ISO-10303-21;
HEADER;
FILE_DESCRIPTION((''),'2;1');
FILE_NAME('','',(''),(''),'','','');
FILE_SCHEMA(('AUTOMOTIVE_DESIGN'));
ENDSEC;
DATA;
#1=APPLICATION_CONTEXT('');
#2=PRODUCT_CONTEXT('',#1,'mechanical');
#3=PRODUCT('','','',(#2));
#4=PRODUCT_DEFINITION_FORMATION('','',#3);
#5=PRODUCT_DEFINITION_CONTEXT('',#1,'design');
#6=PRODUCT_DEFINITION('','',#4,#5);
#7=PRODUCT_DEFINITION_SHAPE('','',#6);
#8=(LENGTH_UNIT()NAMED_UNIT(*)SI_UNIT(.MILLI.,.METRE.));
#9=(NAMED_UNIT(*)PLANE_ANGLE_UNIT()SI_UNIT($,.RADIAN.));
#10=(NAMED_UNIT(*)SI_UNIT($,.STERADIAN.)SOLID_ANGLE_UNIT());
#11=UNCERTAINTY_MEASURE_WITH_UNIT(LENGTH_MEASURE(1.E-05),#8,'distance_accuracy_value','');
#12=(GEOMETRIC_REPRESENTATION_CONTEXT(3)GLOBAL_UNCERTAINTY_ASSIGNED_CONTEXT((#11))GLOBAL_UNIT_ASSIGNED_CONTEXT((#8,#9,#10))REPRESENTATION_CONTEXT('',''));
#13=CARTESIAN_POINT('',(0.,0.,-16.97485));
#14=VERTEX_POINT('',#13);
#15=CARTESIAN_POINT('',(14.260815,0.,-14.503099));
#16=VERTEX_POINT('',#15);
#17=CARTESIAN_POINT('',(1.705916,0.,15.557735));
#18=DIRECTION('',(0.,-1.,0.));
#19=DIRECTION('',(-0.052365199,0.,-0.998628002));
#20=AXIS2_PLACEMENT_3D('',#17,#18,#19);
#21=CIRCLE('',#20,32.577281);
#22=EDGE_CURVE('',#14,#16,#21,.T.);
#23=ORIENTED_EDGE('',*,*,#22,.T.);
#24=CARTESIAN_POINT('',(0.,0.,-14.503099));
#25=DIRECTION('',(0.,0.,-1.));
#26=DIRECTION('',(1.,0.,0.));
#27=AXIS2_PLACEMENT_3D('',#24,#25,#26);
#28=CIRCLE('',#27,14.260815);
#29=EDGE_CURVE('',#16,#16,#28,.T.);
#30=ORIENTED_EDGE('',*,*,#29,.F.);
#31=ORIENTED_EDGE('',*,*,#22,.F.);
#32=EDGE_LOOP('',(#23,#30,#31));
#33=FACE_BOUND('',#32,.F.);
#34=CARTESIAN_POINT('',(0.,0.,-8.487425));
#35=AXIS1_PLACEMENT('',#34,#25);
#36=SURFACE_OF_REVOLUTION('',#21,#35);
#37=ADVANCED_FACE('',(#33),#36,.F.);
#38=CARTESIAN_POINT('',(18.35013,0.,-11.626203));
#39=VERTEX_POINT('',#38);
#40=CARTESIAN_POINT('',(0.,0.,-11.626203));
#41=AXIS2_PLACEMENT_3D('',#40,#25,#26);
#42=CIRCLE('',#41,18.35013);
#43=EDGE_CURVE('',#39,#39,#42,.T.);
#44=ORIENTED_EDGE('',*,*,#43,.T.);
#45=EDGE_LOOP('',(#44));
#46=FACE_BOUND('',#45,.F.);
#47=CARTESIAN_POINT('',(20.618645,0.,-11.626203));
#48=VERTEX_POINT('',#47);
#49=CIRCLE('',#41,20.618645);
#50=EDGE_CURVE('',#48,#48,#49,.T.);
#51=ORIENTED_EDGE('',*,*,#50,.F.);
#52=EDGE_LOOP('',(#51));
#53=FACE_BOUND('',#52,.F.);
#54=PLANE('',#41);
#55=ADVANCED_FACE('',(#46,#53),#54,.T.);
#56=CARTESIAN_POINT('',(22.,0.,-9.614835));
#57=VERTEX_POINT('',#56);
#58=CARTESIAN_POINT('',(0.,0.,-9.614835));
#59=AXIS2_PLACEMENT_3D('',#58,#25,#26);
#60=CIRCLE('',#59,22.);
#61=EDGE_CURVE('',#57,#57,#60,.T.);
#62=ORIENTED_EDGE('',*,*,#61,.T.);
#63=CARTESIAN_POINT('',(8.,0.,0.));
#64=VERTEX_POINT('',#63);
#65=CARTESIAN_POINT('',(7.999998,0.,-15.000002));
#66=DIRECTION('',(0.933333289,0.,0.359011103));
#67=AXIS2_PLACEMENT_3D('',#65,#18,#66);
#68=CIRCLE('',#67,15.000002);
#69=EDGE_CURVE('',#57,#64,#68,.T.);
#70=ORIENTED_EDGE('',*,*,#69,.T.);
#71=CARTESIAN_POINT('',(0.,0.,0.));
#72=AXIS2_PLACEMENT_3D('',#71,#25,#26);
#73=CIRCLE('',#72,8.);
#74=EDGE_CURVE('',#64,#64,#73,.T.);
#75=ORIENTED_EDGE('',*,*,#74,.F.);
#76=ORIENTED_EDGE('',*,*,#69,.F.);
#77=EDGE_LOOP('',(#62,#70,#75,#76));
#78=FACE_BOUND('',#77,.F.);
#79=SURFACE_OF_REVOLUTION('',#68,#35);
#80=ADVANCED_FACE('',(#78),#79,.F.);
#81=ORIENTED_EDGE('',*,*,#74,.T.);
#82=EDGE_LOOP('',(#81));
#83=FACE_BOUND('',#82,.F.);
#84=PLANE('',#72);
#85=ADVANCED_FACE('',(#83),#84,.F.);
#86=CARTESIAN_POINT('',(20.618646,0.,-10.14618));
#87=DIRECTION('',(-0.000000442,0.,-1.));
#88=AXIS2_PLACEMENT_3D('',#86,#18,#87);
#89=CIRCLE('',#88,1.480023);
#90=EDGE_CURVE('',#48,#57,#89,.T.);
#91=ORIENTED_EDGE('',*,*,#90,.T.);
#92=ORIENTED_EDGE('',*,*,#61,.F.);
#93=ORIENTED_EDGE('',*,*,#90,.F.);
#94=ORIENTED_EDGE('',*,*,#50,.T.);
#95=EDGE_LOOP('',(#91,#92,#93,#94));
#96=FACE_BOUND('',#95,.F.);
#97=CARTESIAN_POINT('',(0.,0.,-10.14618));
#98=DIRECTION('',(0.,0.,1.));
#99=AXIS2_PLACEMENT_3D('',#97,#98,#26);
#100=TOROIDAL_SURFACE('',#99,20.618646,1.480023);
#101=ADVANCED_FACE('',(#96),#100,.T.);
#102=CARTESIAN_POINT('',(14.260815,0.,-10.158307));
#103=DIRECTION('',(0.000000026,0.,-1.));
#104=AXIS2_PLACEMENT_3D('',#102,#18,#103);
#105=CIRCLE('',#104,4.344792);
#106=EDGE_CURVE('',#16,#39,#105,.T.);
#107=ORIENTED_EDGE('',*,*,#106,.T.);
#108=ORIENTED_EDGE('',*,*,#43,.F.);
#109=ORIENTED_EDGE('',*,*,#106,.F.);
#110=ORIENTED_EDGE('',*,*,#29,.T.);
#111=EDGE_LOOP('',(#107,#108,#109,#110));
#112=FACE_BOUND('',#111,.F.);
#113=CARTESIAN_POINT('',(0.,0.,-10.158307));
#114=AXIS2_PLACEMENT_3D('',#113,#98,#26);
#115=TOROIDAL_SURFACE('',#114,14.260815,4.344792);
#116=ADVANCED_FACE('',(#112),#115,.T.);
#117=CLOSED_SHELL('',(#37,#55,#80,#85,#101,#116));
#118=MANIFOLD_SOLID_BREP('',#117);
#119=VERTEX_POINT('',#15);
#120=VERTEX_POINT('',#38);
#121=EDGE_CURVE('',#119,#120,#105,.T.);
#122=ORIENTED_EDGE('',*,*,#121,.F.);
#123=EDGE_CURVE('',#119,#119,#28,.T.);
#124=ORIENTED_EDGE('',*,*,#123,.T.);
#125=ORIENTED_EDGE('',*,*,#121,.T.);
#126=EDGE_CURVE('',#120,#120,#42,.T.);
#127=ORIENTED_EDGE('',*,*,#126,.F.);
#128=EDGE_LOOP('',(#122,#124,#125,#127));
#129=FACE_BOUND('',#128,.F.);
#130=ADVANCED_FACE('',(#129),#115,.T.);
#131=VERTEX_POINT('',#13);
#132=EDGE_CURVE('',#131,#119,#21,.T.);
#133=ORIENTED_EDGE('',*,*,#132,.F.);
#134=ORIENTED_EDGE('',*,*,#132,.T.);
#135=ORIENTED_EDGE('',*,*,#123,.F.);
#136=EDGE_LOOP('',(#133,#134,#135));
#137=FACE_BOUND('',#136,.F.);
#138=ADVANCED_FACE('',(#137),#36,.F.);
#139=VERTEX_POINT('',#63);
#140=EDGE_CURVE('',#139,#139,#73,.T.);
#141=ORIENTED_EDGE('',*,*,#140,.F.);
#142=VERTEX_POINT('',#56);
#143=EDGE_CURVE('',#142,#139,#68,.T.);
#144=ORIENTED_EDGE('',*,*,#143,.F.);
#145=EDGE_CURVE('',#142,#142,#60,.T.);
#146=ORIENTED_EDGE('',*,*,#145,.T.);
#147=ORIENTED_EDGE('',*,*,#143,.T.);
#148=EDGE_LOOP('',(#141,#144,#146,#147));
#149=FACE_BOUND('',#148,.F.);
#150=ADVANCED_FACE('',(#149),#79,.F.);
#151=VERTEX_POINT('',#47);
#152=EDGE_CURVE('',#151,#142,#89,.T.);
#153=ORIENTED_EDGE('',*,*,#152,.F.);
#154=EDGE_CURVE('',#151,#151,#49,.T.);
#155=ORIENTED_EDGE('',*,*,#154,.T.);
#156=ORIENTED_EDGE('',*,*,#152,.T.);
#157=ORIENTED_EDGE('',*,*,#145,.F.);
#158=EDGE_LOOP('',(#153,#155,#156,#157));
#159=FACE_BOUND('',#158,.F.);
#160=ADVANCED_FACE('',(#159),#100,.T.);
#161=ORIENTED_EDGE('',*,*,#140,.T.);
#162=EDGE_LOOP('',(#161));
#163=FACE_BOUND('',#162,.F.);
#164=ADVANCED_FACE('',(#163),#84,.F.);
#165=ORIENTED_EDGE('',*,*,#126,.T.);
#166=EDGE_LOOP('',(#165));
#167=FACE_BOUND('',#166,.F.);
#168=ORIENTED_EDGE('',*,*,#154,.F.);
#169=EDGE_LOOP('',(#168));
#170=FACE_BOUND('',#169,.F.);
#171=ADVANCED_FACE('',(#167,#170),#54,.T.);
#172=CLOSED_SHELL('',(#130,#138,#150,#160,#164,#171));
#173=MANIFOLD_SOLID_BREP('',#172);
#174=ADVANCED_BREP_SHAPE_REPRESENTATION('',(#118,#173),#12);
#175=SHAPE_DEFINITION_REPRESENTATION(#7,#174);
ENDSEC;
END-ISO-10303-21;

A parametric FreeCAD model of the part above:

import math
import FreeCAD as App
import Part
import Sketcher
from FreeCAD import Vector

doc = App.newDocument("Part")
body = doc.addObject("PartDesign::Body", "Body")

# Sketch on XZ plane
sketch1 = body.newObject("Sketcher::SketchObject", "Sketch")
sketch1.AttachmentSupport = (doc.getObject("XZ_Plane"), [""])
sketch1.MapMode = "FlatFace"
sketch1.addGeometry([
    Part.LineSegment(Vector(8, 0, 0), Vector(0, 0, 0)),  # 0
    Part.LineSegment(Vector(0, 0, 0), Vector(0, -16.97485, 0)),  # 1
    Part.ArcOfCircle(Part.Circle(Vector(1.705916, 15.557735, 0), Vector(0, 0, 1), 32.577281), math.radians(-93.001678), math.radians(-67.332158)),  # 2
    Part.ArcOfCircle(Part.Circle(Vector(14.260815, -10.158307, 0), Vector(0, 0, 1), 4.344792), math.radians(-89.999999), math.radians(-19.74605)),  # 3
    Part.LineSegment(Vector(18.35013, -11.626203, 0), Vector(20.618645, -11.626203, 0)),  # 4
    Part.ArcOfCircle(Part.Circle(Vector(20.618646, -10.14618, 0), Vector(0, 0, 1), 1.480023), math.radians(-90.000025), math.radians(21.0395)),  # 5
    Part.ArcOfCircle(Part.Circle(Vector(7.999998, -15.000002, 0), Vector(0, 0, 1), 15.000002), math.radians(21.039477), math.radians(89.999994)),  # 6
], False)
sketch1.addConstraint([
    Sketcher.Constraint("Coincident", 0, 2, 1, 1),
    Sketcher.Constraint("Coincident", 1, 2, 2, 1),
    Sketcher.Constraint("Coincident", 2, 2, 3, 1),
    Sketcher.Constraint("Coincident", 3, 2, 4, 1),
    Sketcher.Constraint("Tangent", 4, 2, 5, 1),
    Sketcher.Constraint("Tangent", 5, 2, 6, 1),
    Sketcher.Constraint("Tangent", 6, 2, 0, 1),
    Sketcher.Constraint("Horizontal", 0),
    Sketcher.Constraint("Vertical", 1),
    Sketcher.Constraint("Horizontal", 4),
    Sketcher.Constraint("Coincident", 0, 2, -1, 1),
    Sketcher.Constraint("Vertical", 3, 3, 2, 2),
    Sketcher.Constraint("DistanceX", 0, 2, 0, 1, 8.0),
    Sketcher.Constraint("DistanceX", -1, 1, 5, 2, 22.0),
    Sketcher.Constraint("Radius", 2, 32.577281),
    Sketcher.Constraint("Radius", 3, 4.344792),
    Sketcher.Constraint("Radius", 5, 1.480023),
    Sketcher.Constraint("Radius", 6, 15.000002),
    Sketcher.Constraint("DistanceY", 1, 2, 1, 1, 16.97485),
    Sketcher.Constraint("DistanceY", 2, 2, -1, 1, 14.503099),
    Sketcher.Constraint("DistanceX", 2, 3, 3, 3, 12.554899),
])
revolution = body.newObject("PartDesign::Revolution", "Revolution")
revolution.Profile = sketch1
revolution.ReferenceAxis = (sketch1, ["V_Axis"])
revolution.Angle = 360
body2 = doc.addObject("PartDesign::Body", "Body001")

# Sketch on XZ plane
sketch2 = body2.newObject("Sketcher::SketchObject", "Sketch001")
sketch2.AttachmentSupport = (doc.getObject("XZ_Plane001"), [""])
sketch2.MapMode = "FlatFace"
sketch2.addGeometry([
    Part.LineSegment(Vector(8, 0, 0), Vector(0, 0, 0)),  # 0
    Part.LineSegment(Vector(0, 0, 0), Vector(0, -16.97485, 0)),  # 1
    Part.ArcOfCircle(Part.Circle(Vector(1.705916, 15.557735, 0), Vector(0, 0, 1), 32.577281), math.radians(-93.001678), math.radians(-67.332158)),  # 2
    Part.ArcOfCircle(Part.Circle(Vector(14.260815, -10.158307, 0), Vector(0, 0, 1), 4.344792), math.radians(-89.999999), math.radians(-19.74605)),  # 3
    Part.LineSegment(Vector(18.35013, -11.626203, 0), Vector(20.618645, -11.626203, 0)),  # 4
    Part.ArcOfCircle(Part.Circle(Vector(20.618646, -10.14618, 0), Vector(0, 0, 1), 1.480023), math.radians(-90.000025), math.radians(21.0395)),  # 5
    Part.ArcOfCircle(Part.Circle(Vector(7.999998, -15.000002, 0), Vector(0, 0, 1), 15.000002), math.radians(21.039477), math.radians(89.999994)),  # 6
], False)
sketch2.addConstraint([
    Sketcher.Constraint("Coincident", 0, 2, 1, 1),
    Sketcher.Constraint("Coincident", 1, 2, 2, 1),
    Sketcher.Constraint("Coincident", 2, 2, 3, 1),
    Sketcher.Constraint("Coincident", 3, 2, 4, 1),
    Sketcher.Constraint("Tangent", 4, 2, 5, 1),
    Sketcher.Constraint("Tangent", 5, 2, 6, 1),
    Sketcher.Constraint("Tangent", 6, 2, 0, 1),
    Sketcher.Constraint("Horizontal", 0),
    Sketcher.Constraint("Vertical", 1),
    Sketcher.Constraint("Horizontal", 4),
    Sketcher.Constraint("Coincident", 0, 2, -1, 1),
    Sketcher.Constraint("Vertical", 3, 3, 2, 2),
    Sketcher.Constraint("DistanceX", 0, 2, 0, 1, 8.0),
    Sketcher.Constraint("DistanceX", -1, 1, 5, 2, 22.0),
    Sketcher.Constraint("Radius", 2, 32.577281),
    Sketcher.Constraint("Radius", 3, 4.344792),
    Sketcher.Constraint("Radius", 5, 1.480023),
    Sketcher.Constraint("Radius", 6, 15.000002),
    Sketcher.Constraint("DistanceY", 1, 2, 1, 1, 16.97485),
    Sketcher.Constraint("DistanceY", 2, 2, -1, 1, 14.503099),
    Sketcher.Constraint("DistanceX", 2, 3, 3, 3, 12.554899),
])
revolution2 = body2.newObject("PartDesign::Revolution", "Revolution001")
revolution2.Profile = sketch2
revolution2.ReferenceAxis = (sketch2, ["V_Axis"])
revolution2.Angle = 360

doc.recompute()
